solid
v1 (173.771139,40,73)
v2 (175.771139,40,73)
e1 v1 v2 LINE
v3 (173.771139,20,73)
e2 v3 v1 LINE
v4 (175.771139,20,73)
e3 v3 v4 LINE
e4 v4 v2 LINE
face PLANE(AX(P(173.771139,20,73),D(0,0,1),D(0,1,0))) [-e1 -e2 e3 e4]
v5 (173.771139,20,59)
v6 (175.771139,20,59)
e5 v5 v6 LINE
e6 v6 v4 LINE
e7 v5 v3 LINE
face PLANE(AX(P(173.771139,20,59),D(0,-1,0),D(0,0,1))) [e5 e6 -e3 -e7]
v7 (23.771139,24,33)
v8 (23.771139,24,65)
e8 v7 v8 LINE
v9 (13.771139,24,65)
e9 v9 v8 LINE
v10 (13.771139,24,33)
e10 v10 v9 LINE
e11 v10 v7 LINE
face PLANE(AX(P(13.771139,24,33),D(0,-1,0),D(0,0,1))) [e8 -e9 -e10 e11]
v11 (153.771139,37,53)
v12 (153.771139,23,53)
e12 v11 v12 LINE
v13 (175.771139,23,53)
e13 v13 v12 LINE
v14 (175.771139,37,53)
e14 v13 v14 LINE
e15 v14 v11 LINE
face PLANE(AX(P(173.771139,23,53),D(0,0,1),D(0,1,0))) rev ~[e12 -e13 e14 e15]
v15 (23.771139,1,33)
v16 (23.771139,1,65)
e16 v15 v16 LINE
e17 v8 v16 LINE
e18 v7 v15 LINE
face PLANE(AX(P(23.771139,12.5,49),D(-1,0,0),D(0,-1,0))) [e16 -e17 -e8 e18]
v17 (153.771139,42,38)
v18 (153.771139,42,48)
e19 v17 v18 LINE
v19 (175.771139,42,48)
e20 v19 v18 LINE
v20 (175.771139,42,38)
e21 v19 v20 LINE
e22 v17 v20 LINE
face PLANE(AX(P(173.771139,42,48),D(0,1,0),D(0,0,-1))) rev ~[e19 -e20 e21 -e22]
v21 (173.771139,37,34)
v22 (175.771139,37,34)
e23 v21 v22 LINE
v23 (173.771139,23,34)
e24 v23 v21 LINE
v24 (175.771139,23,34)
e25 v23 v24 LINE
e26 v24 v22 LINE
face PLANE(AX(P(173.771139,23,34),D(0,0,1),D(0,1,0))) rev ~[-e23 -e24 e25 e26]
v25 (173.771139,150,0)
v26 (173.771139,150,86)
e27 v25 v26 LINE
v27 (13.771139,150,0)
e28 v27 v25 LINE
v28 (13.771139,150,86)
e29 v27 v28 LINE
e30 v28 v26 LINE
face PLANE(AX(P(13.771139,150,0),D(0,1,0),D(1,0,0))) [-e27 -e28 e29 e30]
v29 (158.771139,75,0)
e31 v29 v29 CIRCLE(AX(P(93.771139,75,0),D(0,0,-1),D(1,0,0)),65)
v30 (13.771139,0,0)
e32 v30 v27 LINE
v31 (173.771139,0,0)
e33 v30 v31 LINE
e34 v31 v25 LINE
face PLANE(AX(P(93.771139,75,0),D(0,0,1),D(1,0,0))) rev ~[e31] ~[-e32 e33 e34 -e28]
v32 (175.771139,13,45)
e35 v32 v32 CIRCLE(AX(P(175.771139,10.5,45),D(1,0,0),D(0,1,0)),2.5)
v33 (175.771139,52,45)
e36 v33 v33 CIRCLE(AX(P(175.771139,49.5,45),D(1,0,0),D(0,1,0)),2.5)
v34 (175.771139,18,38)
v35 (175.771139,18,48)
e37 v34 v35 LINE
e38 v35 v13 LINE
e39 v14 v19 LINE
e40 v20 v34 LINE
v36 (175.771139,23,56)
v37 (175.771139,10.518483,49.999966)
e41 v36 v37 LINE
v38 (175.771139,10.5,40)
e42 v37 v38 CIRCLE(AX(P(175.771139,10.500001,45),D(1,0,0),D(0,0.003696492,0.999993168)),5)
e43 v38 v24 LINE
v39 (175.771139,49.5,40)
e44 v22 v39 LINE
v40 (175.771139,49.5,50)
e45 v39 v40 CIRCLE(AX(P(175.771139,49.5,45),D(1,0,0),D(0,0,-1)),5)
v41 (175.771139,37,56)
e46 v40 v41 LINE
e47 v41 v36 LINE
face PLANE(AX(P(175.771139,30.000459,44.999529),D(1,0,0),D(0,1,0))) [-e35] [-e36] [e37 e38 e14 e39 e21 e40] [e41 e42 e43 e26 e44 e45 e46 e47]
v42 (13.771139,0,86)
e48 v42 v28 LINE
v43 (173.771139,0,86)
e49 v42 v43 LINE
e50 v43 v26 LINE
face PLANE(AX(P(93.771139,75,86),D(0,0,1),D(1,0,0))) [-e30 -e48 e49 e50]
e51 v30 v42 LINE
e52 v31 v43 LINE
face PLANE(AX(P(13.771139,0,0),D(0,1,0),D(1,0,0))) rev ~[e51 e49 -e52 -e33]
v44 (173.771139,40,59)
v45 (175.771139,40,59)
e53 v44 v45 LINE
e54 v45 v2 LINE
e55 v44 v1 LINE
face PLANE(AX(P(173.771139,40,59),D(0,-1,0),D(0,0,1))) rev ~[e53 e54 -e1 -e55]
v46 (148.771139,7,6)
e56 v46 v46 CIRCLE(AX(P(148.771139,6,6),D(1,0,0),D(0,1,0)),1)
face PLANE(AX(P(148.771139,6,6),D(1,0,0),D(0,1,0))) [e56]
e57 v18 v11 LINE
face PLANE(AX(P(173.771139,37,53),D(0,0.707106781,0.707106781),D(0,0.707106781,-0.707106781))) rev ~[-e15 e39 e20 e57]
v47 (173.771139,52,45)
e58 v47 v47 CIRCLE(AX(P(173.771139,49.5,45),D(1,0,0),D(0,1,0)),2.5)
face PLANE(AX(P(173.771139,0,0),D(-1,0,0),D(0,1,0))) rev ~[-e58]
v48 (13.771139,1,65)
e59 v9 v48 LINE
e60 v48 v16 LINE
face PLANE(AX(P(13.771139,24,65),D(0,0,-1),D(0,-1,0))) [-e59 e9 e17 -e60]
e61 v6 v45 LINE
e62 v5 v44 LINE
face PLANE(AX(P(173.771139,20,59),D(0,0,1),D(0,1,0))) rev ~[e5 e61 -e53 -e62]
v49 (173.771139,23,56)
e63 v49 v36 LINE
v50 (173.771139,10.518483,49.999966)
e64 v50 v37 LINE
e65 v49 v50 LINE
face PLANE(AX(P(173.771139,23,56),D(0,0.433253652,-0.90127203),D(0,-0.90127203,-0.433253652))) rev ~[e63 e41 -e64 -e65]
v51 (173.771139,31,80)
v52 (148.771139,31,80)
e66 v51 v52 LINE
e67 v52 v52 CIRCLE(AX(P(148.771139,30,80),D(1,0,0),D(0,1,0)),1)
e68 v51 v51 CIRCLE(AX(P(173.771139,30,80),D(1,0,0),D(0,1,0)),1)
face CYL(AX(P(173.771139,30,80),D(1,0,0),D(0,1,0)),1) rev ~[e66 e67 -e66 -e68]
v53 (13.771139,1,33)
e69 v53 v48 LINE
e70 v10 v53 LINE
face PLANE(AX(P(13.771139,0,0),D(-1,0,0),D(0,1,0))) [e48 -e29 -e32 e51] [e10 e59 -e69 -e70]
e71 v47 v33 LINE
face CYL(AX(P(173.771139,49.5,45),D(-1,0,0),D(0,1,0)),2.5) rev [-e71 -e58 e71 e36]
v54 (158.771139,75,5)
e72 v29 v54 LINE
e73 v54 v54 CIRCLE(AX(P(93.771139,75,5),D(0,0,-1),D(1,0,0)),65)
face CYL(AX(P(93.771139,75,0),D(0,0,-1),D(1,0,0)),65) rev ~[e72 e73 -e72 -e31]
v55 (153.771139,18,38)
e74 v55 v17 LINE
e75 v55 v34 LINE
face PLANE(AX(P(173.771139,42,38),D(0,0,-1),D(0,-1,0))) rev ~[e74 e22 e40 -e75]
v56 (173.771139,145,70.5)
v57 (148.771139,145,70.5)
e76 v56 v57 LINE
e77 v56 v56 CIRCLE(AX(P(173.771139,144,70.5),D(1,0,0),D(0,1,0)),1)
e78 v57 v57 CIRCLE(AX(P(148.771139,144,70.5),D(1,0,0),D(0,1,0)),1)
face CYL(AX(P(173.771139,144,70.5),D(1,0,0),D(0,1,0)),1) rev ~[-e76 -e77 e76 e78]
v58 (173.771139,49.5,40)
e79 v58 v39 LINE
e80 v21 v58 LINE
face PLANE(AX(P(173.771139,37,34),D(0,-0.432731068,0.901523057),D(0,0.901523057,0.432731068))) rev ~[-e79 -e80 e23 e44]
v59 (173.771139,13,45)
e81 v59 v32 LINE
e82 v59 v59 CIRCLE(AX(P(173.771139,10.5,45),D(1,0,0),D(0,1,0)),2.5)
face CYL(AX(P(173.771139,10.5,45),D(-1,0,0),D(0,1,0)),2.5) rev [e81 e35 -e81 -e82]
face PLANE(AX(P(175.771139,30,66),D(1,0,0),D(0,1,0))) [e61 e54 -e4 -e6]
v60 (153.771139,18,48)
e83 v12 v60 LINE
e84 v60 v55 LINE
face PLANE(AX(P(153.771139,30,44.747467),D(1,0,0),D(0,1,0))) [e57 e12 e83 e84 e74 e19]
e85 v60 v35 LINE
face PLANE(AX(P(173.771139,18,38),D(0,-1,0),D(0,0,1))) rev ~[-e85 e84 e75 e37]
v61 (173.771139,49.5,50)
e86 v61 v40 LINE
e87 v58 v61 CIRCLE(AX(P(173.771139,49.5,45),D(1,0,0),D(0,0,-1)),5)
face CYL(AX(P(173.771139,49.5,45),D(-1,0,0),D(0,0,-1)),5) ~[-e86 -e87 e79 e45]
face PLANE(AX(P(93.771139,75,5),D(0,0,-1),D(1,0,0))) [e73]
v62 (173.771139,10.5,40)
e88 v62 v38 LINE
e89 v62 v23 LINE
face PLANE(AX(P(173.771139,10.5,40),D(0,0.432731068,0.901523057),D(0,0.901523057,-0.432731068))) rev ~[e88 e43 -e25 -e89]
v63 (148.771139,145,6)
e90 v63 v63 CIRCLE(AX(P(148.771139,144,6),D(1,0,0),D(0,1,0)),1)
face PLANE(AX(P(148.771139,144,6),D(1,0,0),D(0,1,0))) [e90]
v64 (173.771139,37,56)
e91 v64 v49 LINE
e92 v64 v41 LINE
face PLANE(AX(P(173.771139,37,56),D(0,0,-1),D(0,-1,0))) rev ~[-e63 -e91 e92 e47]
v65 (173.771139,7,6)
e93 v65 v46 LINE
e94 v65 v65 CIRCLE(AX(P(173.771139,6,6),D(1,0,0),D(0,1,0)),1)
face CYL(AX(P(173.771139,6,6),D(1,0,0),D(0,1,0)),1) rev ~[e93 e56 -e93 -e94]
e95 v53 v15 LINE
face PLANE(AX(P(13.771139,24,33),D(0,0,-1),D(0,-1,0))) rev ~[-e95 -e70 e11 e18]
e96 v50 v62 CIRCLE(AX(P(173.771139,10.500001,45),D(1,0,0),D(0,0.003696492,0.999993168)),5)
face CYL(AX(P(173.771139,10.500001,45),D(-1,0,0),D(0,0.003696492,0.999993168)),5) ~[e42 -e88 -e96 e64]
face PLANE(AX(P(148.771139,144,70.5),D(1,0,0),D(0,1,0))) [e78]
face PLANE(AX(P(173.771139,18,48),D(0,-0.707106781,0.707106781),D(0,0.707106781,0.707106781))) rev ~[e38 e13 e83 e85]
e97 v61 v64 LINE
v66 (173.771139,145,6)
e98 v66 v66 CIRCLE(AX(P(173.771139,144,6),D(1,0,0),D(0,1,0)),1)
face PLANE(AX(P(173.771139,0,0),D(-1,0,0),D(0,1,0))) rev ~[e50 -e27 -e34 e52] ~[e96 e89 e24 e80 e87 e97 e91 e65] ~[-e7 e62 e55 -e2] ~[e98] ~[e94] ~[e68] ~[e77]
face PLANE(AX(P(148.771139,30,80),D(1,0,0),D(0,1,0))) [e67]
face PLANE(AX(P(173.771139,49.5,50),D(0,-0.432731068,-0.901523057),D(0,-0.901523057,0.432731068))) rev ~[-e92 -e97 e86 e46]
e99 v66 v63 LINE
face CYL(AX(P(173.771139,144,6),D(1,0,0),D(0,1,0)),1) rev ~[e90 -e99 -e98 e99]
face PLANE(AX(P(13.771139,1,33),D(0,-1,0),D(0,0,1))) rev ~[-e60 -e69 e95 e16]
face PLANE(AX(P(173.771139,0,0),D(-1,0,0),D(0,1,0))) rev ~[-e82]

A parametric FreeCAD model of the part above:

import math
import FreeCAD as App
import Part
import Sketcher


def add_polygon(sketch, points):
    """Adds a closed chain of lines whose ends are joined by coincident constraints."""
    first, n = sketch.GeometryCount, len(points)
    for a, b in zip(points, points[1:] + points[:1]):
        sketch.addGeometry(Part.LineSegment(App.Vector(*a, 0), App.Vector(*b, 0)), False)
    for i in range(n):
        sketch.addConstraint(Sketcher.Constraint("Coincident", first + i, 2, first + (i + 1) % n, 1))

doc = App.newDocument("Part")
body = doc.addObject("PartDesign::Body", "Body")

sketch1 = doc.addObject("Sketcher::SketchObject", "Sketch")
body.addObject(sketch1)
sketch1.AttachmentSupport = (doc.XY_Plane, [""])
sketch1.MapMode = "FlatFace"
add_polygon(sketch1, [(14, 150), (14, 0), (174, 0), (174, 150)])
sketch1.addConstraint([
    Sketcher.Constraint("Vertical", 0),
    Sketcher.Constraint("Horizontal", 1),
    Sketcher.Constraint("Vertical", 2),
    Sketcher.Constraint("Horizontal", 3),
    Sketcher.Constraint("PointOnObject", 0, 2, -1),
    Sketcher.Constraint("DistanceX", 1, 1, 1, 2, 160.0),
    Sketcher.Constraint("DistanceY", 0, 2, 0, 1, 150.0),
    Sketcher.Constraint("DistanceX", -1, 1, 0, 2, 13.771139),
])
pad1 = doc.addObject("PartDesign::Pad", "Pad")
body.addObject(pad1)
pad1.Profile = sketch1
pad1.Length = 86

sketch2 = doc.addObject("Sketcher::SketchObject", "Sketch001")
body.addObject(sketch2)
sketch2.AttachmentSupport = (doc.YZ_Plane, [""])
sketch2.MapMode = "FlatFace"
sketch2.AttachmentOffset = App.Placement(App.Vector(0, 0, 173.771139), App.Rotation())
add_polygon(sketch2, [(37, 53), (23, 53), (18, 48), (18, 38), (42, 38), (42, 48)])
sketch2.addConstraint([
    Sketcher.Constraint("Horizontal", 0),
    Sketcher.Constraint("Vertical", 2),
    Sketcher.Constraint("Horizontal", 3),
    Sketcher.Constraint("Vertical", 4),
    Sketcher.Constraint("Perpendicular", 1, 5),
    Sketcher.Constraint("Horizontal", 1, 2, 4, 2),
    Sketcher.Constraint("Equal", 1, 5),
    Sketcher.Constraint("DistanceX", 0, 2, 0, 1, 14.0),
    Sketcher.Constraint("DistanceX", 3, 1, 3, 2, 24.0),
    Sketcher.Constraint("DistanceY", 2, 2, 2, 1, 10.0),
    Sketcher.Constraint("DistanceX", -1, 1, 0, 2, 23.0),
    Sketcher.Constraint("DistanceY", -1, 1, 0, 2, 53.0),
])
pocket1 = doc.addObject("PartDesign::Pocket", "Pocket")
body.addObject(pocket1)
pocket1.Profile = sketch2
pocket1.Length = 20

sketch3 = doc.addObject("Sketcher::SketchObject", "Sketch002")
body.addObject(sketch3)
sketch3.AttachmentSupport = (doc.YZ_Plane, [""])
sketch3.MapMode = "FlatFace"
sketch3.AttachmentOffset = App.Placement(App.Vector(0, 0, 173.771139), App.Rotation())
add_polygon(sketch3, [(20, 73), (20, 59), (40, 59), (40, 73)])
sketch3.addConstraint([
    Sketcher.Constraint("Vertical", 0),
    Sketcher.Constraint("Horizontal", 1),
    Sketcher.Constraint("Vertical", 2),
    Sketcher.Constraint("Horizontal", 3),
    Sketcher.Constraint("DistanceX", 1, 1, 1, 2, 20.0),
    Sketcher.Constraint("DistanceY", 0, 2, 0, 1, 14.0),
    Sketcher.Constraint("DistanceX", -1, 1, 0, 2, 20.0),
    Sketcher.Constraint("DistanceY", -1, 1, 0, 2, 59.0),
])
pad2 = doc.addObject("PartDesign::Pad", "Pad001")
body.addObject(pad2)
pad2.Profile = sketch3
pad2.Length = 2

sketch4 = doc.addObject("Sketcher::SketchObject", "Sketch003")
body.addObject(sketch4)
sketch4.AttachmentSupport = (doc.YZ_Plane, [""])
sketch4.MapMode = "FlatFace"
sketch4.AttachmentOffset = App.Placement(App.Vector(0, 0, 173.771139), App.Rotation())
sketch4.addGeometry(Part.LineSegment(App.Vector(23, 56, 0), App.Vector(10.5, 50, 0)), False)
sketch4.addGeometry(Part.ArcOfCircle(Part.Circle(App.Vector(10.5, 45, 0), App.Vector(0, 0, 1), 5), math.radians(90), math.radians(270)), False)
sketch4.addGeometry(Part.LineSegment(App.Vector(10.5, 40, 0), App.Vector(23, 34, 0)), False)
sketch4.addGeometry(Part.LineSegment(App.Vector(23, 34, 0), App.Vector(37, 34, 0)), False)
sketch4.addGeometry(Part.LineSegment(App.Vector(37, 34, 0), App.Vector(49.5, 40, 0)), False)
sketch4.addGeometry(Part.ArcOfCircle(Part.Circle(App.Vector(49.5, 45, 0), App.Vector(0, 0, 1), 5), math.radians(-90), math.radians(90)), False)
sketch4.addGeometry(Part.LineSegment(App.Vector(49.5, 50, 0), App.Vector(37, 56, 0)), False)
sketch4.addGeometry(Part.LineSegment(App.Vector(37, 56, 0), App.Vector(23, 56, 0)), False)
sketch4.addGeometry(Part.Circle(App.Vector(10.5, 45, 0), App.Vector(0, 0, 1), 2.5), False)
sketch4.addGeometry(Part.Circle(App.Vector(49.5, 45, 0), App.Vector(0, 0, 1), 2.5), False)
add_polygon(sketch4, [(42, 48), (42, 38), (18, 38), (18, 48), (23, 53), (37, 53)])
sketch4.addConstraint([
    Sketcher.Constraint("Coincident", 0, 2, 1, 1),
    Sketcher.Constraint("Coincident", 1, 2, 2, 1),
    Sketcher.Constraint("Coincident", 2, 2, 3, 1),
    Sketcher.Constraint("Coincident", 3, 2, 4, 1),
    Sketcher.Constraint("Coincident", 4, 2, 5, 1),
    Sketcher.Constraint("Coincident", 5, 2, 6, 1),
    Sketcher.Constraint("Coincident", 6, 2, 7, 1),
    Sketcher.Constraint("Coincident", 7, 2, 0, 1),
    Sketcher.Constraint("Horizontal", 3),
    Sketcher.Constraint("Horizontal", 7),
    Sketcher.Constraint("Vertical", 10),
    Sketcher.Constraint("Horizontal", 11),
    Sketcher.Constraint("Vertical", 12),
    Sketcher.Constraint("Horizontal", 14),
    Sketcher.Constraint("Coincident", 8, 3, 1, 3),
    Sketcher.Constraint("Coincident", 9, 3, 5, 3),
    Sketcher.Constraint("Equal", 1, 5),
    Sketcher.Constraint("Equal", 8, 9),
    Sketcher.Constraint("Parallel", 2, 6),
    Sketcher.Constraint("Perpendicular", 13, 15),
    Sketcher.Constraint("Horizontal", 1, 3, 5, 3),
    Sketcher.Constraint("Horizontal", 12, 2, 15, 2),
    Sketcher.Constraint("Vertical", 8, 3, 1, 2),
    Sketcher.Constraint("Vertical", 9, 3, 4, 2),
    Sketcher.Constraint("Vertical", 4, 2, 5, 2),
    Sketcher.Constraint("Vertical", 3, 2, 6, 2),
    Sketcher.Constraint("Vertical", 2, 2, 7, 2),
    Sketcher.Constraint("Vertical", 7, 2, 13, 2),
    Sketcher.Constraint("Vertical", 6, 2, 14, 2),
    Sketcher.Constraint("Equal", 2, 4),
    Sketcher.Constraint("Equal", 13, 15),
    Sketcher.Constraint("Diameter", 8, 5.0),
    Sketcher.Constraint("Radius", 1, 5.0),
    Sketcher.Constraint("DistanceX", 3, 1, 3, 2, 14.0),
    Sketcher.Constraint("DistanceX", 11, 2, 11, 1, 24.0),
    Sketcher.Constraint("DistanceY", 10, 2, 10, 1, 10.0),
    Sketcher.Constraint("DistanceY", -1, 1, 1, 3, 45.0),
    Sketcher.Constraint("DistanceX", -1, 1, 2, 2, 23.0),
    Sketcher.Constraint("DistanceY", -1, 1, 2, 2, 34.0),
    Sketcher.Constraint("DistanceY", -1, 1, 10, 2, 38.0),
    Sketcher.Constraint("DistanceX", 1, 3, 5, 3, 38.999999),
    Sketcher.Constraint("Distance", 0, 13.848779),
])
pad3 = doc.addObject("PartDesign::Pad", "Pad002")
body.addObject(pad3)
pad3.Profile = sketch4
pad3.Length = 2

sketch5 = doc.addObject("Sketcher::SketchObject", "Sketch004")
body.addObject(sketch5)
sketch5.AttachmentSupport = (doc.YZ_Plane, [""])
sketch5.MapMode = "FlatFace"
sketch5.AttachmentOffset = App.Placement(App.Vector(0, 0, 173.771139), App.Rotation())
sketch5.addGeometry([
    Part.Circle(App.Vector(30, 80, 0), App.Vector(0, 0, 1), 1),
    Part.Circle(App.Vector(6, 6, 0), App.Vector(0, 0, 1), 1),
    Part.Circle(App.Vector(144, 70.5, 0), App.Vector(0, 0, 1), 1),
    Part.Circle(App.Vector(144, 6, 0), App.Vector(0, 0, 1), 1),
], False)
sketch5.addConstraint([
    Sketcher.Constraint("Equal", 0, 1),
    Sketcher.Constraint("Equal", 1, 2),
    Sketcher.Constraint("Equal", 2, 3),
    Sketcher.Constraint("Horizontal", 1, 3, 3, 3),
    Sketcher.Constraint("Vertical", 2, 3, 3, 3),
    Sketcher.Constraint("Diameter", 0, 2.0),
    Sketcher.Constraint("DistanceX", -1, 1, 0, 3, 30.0),
    Sketcher.Constraint("DistanceY", -1, 1, 0, 3, 80.0),
    Sketcher.Constraint("DistanceX", -1, 1, 1, 3, 6.0),
    Sketcher.Constraint("DistanceY", -1, 1, 1, 3, 6.0),
    Sketcher.Constraint("DistanceX", -1, 1, 2, 3, 144.0),
    Sketcher.Constraint("DistanceY", -1, 1, 2, 3, 70.5),
])
pocket2 = doc.addObject("PartDesign::Pocket", "Pocket001")
body.addObject(pocket2)
pocket2.Profile = sketch5
pocket2.Length = 25

sketch6 = doc.addObject("Sketcher::SketchObject", "Sketch005")
body.addObject(sketch6)
sketch6.AttachmentSupport = (doc.YZ_Plane, [""])
sketch6.MapMode = "FlatFace"
sketch6.AttachmentOffset = App.Placement(App.Vector(0, 0, 13.771139), App.Rotation())
add_polygon(sketch6, [(24, 65), (24, 33), (1, 33), (1, 65)])
sketch6.addConstraint([
    Sketcher.Constraint("Vertical", 0),
    Sketcher.Constraint("Horizontal", 1),
    Sketcher.Constraint("Vertical", 2),
    Sketcher.Constraint("Horizontal", 3),
    Sketcher.Constraint("DistanceX", 1, 2, 1, 1, 23.0),
    Sketcher.Constraint("DistanceY", 0, 2, 0, 1, 32.0),
    Sketcher.Constraint("DistanceX", -1, 1, 0, 2, 24.0),
    Sketcher.Constraint("DistanceY", -1, 1, 0, 2, 33.0),
])
pocket3 = doc.addObject("PartDesign::Pocket", "Pocket002")
body.addObject(pocket3)
pocket3.Profile = sketch6
pocket3.Length = 10
pocket3.Reversed = True

sketch7 = doc.addObject("Sketcher::SketchObject", "Sketch006")
body.addObject(sketch7)
sketch7.AttachmentSupport = (doc.XY_Plane, [""])
sketch7.MapMode = "FlatFace"
sketch7.addGeometry(Part.Circle(App.Vector(94, 75, 0), App.Vector(0, 0, 1), 65), False)
sketch7.addConstraint([
    Sketcher.Constraint("Diameter", 0, 130.0),
    Sketcher.Constraint("DistanceY", -1, 1, 0, 3, 75.0),
    Sketcher.Constraint("DistanceX", -1, 1, 0, 3, 93.771139),
])
pocket4 = doc.addObject("PartDesign::Pocket", "Pocket003")
body.addObject(pocket4)
pocket4.Profile = sketch7
pocket4.Length = 5
pocket4.Reversed = True

doc.recompute()
